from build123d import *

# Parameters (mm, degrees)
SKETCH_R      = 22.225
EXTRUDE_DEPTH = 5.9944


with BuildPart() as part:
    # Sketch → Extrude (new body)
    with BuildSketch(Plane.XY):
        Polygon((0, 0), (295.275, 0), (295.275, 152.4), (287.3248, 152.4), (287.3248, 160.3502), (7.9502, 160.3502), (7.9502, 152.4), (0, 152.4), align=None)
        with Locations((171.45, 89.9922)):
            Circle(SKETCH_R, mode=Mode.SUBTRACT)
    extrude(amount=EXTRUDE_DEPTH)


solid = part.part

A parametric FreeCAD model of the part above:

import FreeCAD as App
import Part
import Sketcher

V = App.Vector
Q = App.Units.Quantity

doc = App.newDocument("Part")
body = doc.addObject("PartDesign::Body", "Body")

# Sketch on XY plane
sketch1 = body.newObject("Sketcher::SketchObject", "Sketch")
sketch1.AttachmentSupport = (doc.getObject("XY_Plane"), [""])
sketch1.MapMode = "FlatFace"
sketch1.addGeometry(Part.LineSegment(V(0, 0, 0), V(295.275, 0, 0)), False)
sketch1.addGeometry(Part.LineSegment(V(295.275, 0, 0), V(295.275, 152.4, 0)), False)
sketch1.addGeometry(Part.LineSegment(V(295.275, 152.4, 0), V(287.3248, 152.4, 0)), False)
sketch1.addGeometry(Part.LineSegment(V(287.3248, 152.4, 0), V(287.3248, 160.3502, 0)), False)
sketch1.addGeometry(Part.LineSegment(V(287.3248, 160.3502, 0), V(7.9502, 160.3502, 0)), False)
sketch1.addGeometry(Part.LineSegment(V(7.9502, 160.3502, 0), V(7.9502, 152.4, 0)), False)
sketch1.addGeometry(Part.LineSegment(V(7.9502, 152.4, 0), V(0, 152.4, 0)), False)
sketch1.addGeometry(Part.LineSegment(V(0, 152.4, 0), V(0, 0, 0)), False)
sketch1.addGeometry(Part.Circle(V(171.45, 89.9922, 0), V(0, 0, 1), 22.225), False)
sketch1.addConstraint(Sketcher.Constraint("Coincident", 0, 2, 1, 1))
sketch1.addConstraint(Sketcher.Constraint("Coincident", 1, 2, 2, 1))
sketch1.addConstraint(Sketcher.Constraint("Coincident", 2, 2, 3, 1))
sketch1.addConstraint(Sketcher.Constraint("Coincident", 3, 2, 4, 1))
sketch1.addConstraint(Sketcher.Constraint("Coincident", 4, 2, 5, 1))
sketch1.addConstraint(Sketcher.Constraint("Coincident", 5, 2, 6, 1))
sketch1.addConstraint(Sketcher.Constraint("Coincident", 6, 2, 7, 1))
sketch1.addConstraint(Sketcher.Constraint("Coincident", 7, 2, 0, 1))
sketch1.addConstraint(Sketcher.Constraint("Horizontal", 0))
sketch1.addConstraint(Sketcher.Constraint("Vertical", 1))
sketch1.addConstraint(Sketcher.Constraint("Horizontal", 2))
sketch1.addConstraint(Sketcher.Constraint("Vertical", 3))
sketch1.addConstraint(Sketcher.Constraint("Horizontal", 4))
sketch1.addConstraint(Sketcher.Constraint("Vertical", 5))
sketch1.addConstraint(Sketcher.Constraint("Horizontal", 6))
sketch1.addConstraint(Sketcher.Constraint("Vertical", 7))
sketch1.addConstraint(Sketcher.Constraint("Coincident", 7, 2, -1, 1))
sketch1.addConstraint(Sketcher.Constraint("Horizontal", 2, 2, 5, 2))
sketch1.addConstraint(Sketcher.Constraint("Equal", 2, 6))
sketch1.addConstraint(Sketcher.Constraint("Equal", 6, 3))
sketch1.addConstraint(Sketcher.Constraint("Diameter", 8, Q("1.75 in")))
sketch1.addConstraint(Sketcher.Constraint("DistanceY", 1, 1, 1, 2, Q("6 in")))
sketch1.addConstraint(Sketcher.Constraint("DistanceX", 0, 1, 0, 2, Q("11.625 in")))
sketch1.addConstraint(Sketcher.Constraint("DistanceX", 2, 2, 2, 1, Q("0.313 in")))
sketch1.addConstraint(Sketcher.Constraint("DistanceX", -1, 1, 8, 3, Q("6.75 in")))
sketch1.addConstraint(Sketcher.Constraint("DistanceY", 8, 3, 3, 2, Q("2.77 in")))
pad1 = body.newObject("PartDesign::Pad", "Pad")
pad1.Profile = sketch1
pad1.Length = Q("0.236 in")

doc.recompute()
